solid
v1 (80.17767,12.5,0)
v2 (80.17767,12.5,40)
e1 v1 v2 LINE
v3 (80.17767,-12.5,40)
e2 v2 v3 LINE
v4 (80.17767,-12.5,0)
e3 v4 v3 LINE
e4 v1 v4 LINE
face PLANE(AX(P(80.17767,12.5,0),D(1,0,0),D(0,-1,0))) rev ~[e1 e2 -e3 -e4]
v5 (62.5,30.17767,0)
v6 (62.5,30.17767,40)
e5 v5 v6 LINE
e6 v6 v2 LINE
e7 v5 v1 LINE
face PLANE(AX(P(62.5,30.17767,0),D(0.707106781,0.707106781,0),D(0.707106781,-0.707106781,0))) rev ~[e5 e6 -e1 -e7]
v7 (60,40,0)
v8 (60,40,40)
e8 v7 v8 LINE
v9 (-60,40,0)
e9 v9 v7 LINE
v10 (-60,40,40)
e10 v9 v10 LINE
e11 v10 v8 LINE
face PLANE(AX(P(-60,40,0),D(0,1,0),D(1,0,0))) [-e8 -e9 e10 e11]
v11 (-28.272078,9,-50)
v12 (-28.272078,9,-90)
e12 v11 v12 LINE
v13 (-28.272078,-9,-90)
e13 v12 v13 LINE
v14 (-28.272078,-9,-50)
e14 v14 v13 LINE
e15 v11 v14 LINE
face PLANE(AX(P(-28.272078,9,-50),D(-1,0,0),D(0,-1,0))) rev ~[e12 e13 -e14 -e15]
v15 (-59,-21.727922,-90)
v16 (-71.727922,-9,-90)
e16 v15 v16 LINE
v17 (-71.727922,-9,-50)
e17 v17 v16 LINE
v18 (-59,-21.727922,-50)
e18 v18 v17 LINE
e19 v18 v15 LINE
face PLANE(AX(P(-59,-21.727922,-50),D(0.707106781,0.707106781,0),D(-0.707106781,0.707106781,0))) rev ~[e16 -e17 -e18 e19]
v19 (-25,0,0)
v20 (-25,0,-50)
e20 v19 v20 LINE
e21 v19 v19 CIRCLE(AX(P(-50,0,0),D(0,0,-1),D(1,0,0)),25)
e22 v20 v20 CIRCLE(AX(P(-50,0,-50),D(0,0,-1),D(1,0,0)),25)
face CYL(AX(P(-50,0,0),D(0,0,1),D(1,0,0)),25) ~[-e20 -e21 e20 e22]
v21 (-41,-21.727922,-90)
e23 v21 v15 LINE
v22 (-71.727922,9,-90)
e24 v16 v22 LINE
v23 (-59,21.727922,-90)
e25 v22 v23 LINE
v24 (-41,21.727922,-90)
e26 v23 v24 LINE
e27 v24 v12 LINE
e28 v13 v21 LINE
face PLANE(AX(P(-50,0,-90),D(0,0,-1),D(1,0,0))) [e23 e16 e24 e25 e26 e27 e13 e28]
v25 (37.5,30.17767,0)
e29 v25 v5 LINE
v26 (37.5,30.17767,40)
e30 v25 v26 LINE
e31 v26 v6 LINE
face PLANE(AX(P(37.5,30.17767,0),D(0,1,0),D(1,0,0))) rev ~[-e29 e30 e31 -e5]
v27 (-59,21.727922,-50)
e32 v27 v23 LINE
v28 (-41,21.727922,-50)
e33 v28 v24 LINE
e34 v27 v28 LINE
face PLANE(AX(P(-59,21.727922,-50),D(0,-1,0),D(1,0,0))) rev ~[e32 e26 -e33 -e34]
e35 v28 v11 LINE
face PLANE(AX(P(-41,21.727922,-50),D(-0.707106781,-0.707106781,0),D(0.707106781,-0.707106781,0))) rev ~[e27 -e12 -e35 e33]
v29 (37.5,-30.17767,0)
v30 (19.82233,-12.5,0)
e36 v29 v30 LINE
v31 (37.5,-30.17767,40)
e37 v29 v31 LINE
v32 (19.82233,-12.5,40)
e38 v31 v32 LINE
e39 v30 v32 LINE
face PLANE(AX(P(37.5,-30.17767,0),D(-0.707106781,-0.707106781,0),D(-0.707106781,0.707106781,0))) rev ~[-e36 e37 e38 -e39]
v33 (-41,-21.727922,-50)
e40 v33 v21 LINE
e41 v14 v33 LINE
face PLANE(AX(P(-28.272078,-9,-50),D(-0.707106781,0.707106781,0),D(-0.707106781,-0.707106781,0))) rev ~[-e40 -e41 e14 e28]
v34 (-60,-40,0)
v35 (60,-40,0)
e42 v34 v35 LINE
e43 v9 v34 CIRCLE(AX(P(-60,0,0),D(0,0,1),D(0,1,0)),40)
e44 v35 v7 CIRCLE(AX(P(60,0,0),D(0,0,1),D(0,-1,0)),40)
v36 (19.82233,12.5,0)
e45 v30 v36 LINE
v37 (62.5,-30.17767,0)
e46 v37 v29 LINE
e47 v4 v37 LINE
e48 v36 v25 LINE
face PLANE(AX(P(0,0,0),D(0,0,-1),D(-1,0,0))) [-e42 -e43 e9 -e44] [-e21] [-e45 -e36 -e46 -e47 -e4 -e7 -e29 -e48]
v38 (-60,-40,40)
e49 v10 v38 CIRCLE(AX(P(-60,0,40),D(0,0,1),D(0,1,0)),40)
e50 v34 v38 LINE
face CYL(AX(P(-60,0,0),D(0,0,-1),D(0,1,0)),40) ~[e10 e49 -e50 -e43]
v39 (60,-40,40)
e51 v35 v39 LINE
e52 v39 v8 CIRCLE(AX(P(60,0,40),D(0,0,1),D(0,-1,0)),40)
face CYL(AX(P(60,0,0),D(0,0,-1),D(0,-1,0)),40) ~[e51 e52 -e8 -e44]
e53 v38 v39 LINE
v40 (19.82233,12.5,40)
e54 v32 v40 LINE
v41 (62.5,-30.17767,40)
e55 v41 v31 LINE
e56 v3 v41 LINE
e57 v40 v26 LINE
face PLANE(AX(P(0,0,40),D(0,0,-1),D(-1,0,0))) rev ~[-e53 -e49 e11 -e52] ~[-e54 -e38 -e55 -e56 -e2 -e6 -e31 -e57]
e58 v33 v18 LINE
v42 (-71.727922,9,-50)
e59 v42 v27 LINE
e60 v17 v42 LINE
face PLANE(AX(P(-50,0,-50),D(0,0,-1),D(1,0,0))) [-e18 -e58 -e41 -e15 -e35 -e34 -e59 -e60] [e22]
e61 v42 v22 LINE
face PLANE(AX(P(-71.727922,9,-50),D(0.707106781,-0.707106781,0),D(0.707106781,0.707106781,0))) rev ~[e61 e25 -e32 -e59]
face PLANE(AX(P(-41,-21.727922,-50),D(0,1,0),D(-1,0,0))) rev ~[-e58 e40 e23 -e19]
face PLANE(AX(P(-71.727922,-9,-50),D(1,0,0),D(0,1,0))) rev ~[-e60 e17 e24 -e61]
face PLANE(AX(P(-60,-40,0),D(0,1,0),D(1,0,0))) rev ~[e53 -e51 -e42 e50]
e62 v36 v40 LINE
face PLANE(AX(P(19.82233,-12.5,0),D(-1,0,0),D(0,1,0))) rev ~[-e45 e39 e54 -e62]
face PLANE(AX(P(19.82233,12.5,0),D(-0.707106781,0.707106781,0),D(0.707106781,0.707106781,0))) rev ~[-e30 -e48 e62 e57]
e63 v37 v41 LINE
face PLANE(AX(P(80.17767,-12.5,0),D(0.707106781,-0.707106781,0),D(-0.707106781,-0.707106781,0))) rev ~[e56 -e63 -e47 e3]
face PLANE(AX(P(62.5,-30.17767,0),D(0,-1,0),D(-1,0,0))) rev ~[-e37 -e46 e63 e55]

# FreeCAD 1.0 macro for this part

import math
import FreeCAD as App
import Part
import Sketcher
from FreeCAD import Vector
Q = App.Units.Quantity

doc = App.newDocument("Part")
params = doc.addObject("Spreadsheet::Sheet", "Params")
for row, (alias, value) in enumerate([
    ("sketch1_radius", "40 mm"),
    ("sketch1_width", "120 mm"),
    ("pad1_length", "40 mm"),
    ("sketch2_width", "25 mm"),
    ("sketch2_length", "25.000001 mm"),
    ("pocket1_length", "100 mm"),
    ("sketch3_diameter", "50 mm"),
    ("pad2_length", "50 mm"),
    ("sketch4_width", "18 mm"),
    ("sketch4_length", "18 mm"),
    ("pad3_length", "40 mm"),
], start=1):
    params.set(f"A{row}", alias)
    params.set(f"B{row}", "=" + value)
    params.setAlias(f"B{row}", alias)

body = doc.addObject("PartDesign::Body", "Body")

# Sketch on XY plane
sketch1 = doc.addObject("Sketcher::SketchObject", "Sketch")
body.addObject(sketch1)
sketch1.AttachmentSupport = (doc.XY_Plane, [""])
sketch1.MapMode = "FlatFace"
sketch1.addGeometry(Part.LineSegment(Vector(60, 40, 0), Vector(-60, 40, 0)), False)
sketch1.addGeometry(Part.ArcOfCircle(Part.Circle(Vector(-60, 0, 0), Vector(0, 0, 1), 40), math.radians(90), math.radians(270)), False)
sketch1.addGeometry(Part.LineSegment(Vector(-60, -40, 0), Vector(60, -40, 0)), False)
sketch1.addGeometry(Part.ArcOfCircle(Part.Circle(Vector(60, 0, 0), Vector(0, 0, 1), 40), math.radians(-90), math.radians(90)), False)
sketch1.addConstraint(Sketcher.Constraint("Tangent", 0, 2, 1, 1))
sketch1.addConstraint(Sketcher.Constraint("Tangent", 1, 2, 2, 1))
sketch1.addConstraint(Sketcher.Constraint("Tangent", 2, 2, 3, 1))
sketch1.addConstraint(Sketcher.Constraint("Tangent", 3, 2, 0, 1))
sketch1.addConstraint(Sketcher.Constraint("Horizontal", 0))
sketch1.addConstraint(Sketcher.Constraint("Horizontal", 2))
sketch1.addConstraint(Sketcher.Constraint("Symmetric", 1, 3, 3, 3, -1, 1))
sketch1.addConstraint(Sketcher.Constraint("Radius", 1, Q("40 mm")))
sketch1.addConstraint(Sketcher.Constraint("DistanceX", 0, 2, 0, 1, Q("120 mm")))
sketch1.setExpression("Constraints[7]", "Params.sketch1_radius")
sketch1.setExpression("Constraints[8]", "Params.sketch1_width")
pad1 = doc.addObject("PartDesign::Pad", "Pad")
body.addObject(pad1)
pad1.Profile = sketch1
pad1.setExpression("Length", "Params.pad1_length")

# Sketch on XY plane
sketch2 = doc.addObject("Sketcher::SketchObject", "Sketch001")
body.addObject(sketch2)
sketch2.AttachmentSupport = (doc.XY_Plane, [""])
sketch2.MapMode = "FlatFace"
sketch2.addGeometry(Part.LineSegment(Vector(62, 30, 0), Vector(80, 12, 0)), False)
sketch2.addGeometry(Part.LineSegment(Vector(80, 12, 0), Vector(80, -12, 0)), False)
sketch2.addGeometry(Part.LineSegment(Vector(80, -12, 0), Vector(62, -30, 0)), False)
sketch2.addGeometry(Part.LineSegment(Vector(62, -30, 0), Vector(38, -30, 0)), False)
sketch2.addGeometry(Part.LineSegment(Vector(38, -30, 0), Vector(20, -12, 0)), False)
sketch2.addGeometry(Part.LineSegment(Vector(20, -12, 0), Vector(20, 12, 0)), False)
sketch2.addGeometry(Part.LineSegment(Vector(20, 12, 0), Vector(38, 30, 0)), False)
sketch2.addGeometry(Part.LineSegment(Vector(38, 30, 0), Vector(62, 30, 0)), False)
sketch2.addConstraint(Sketcher.Constraint("Coincident", 0, 2, 1, 1))
sketch2.addConstraint(Sketcher.Constraint("Coincident", 1, 2, 2, 1))
sketch2.addConstraint(Sketcher.Constraint("Coincident", 2, 2, 3, 1))
sketch2.addConstraint(Sketcher.Constraint("Coincident", 3, 2, 4, 1))
sketch2.addConstraint(Sketcher.Constraint("Coincident", 4, 2, 5, 1))
sketch2.addConstraint(Sketcher.Constraint("Coincident", 5, 2, 6, 1))
sketch2.addConstraint(Sketcher.Constraint("Coincident", 6, 2, 7, 1))
sketch2.addConstraint(Sketcher.Constraint("Coincident", 7, 2, 0, 1))
sketch2.addConstraint(Sketcher.Constraint("Vertical", 1))
sketch2.addConstraint(Sketcher.Constraint("Horizontal", 3))
sketch2.addConstraint(Sketcher.Constraint("Vertical", 5))
sketch2.addConstraint(Sketcher.Constraint("Horizontal", 7))
sketch2.addConstraint(Sketcher.Constraint("Symmetric", 3, 2, 6, 2, -1))
sketch2.addConstraint(Sketcher.Constraint("Perpendicular", 0, 2))
sketch2.addConstraint(Sketcher.Constraint("Perpendicular", 2, 4))
sketch2.addConstraint(Sketcher.Constraint("Perpendicular", 4, 6))
sketch2.addConstraint(Sketcher.Constraint("Horizontal", 1, 2, 4, 2))
sketch2.addConstraint(Sketcher.Constraint("Horizontal", 0, 2, 5, 2))
sketch2.addConstraint(Sketcher.Constraint("Vertical", 2, 2, 7, 2))
sketch2.addConstraint(Sketcher.Constraint("Equal", 7, 1))
sketch2.addConstraint(Sketcher.Constraint("DistanceX", 3, 2, 3, 1, Q("25 mm")))
sketch2.addConstraint(Sketcher.Constraint("Distance", 0, Q("25.000001 mm")))
sketch2.addConstraint(Sketcher.Constraint("DistanceX", -1, 1, 2, 2, Q("62.5 mm")))
sketch2.setExpression("Constraints[20]", "Params.sketch2_width")
sketch2.setExpression("Constraints[21]", "Params.sketch2_length")
pocket1 = doc.addObject("PartDesign::Pocket", "Pocket")
body.addObject(pocket1)
pocket1.Profile = sketch2
pocket1.setExpression("Length", "Params.pocket1_length")
pocket1.Reversed = True

# Sketch on XY plane
sketch3 = doc.addObject("Sketcher::SketchObject", "Sketch002")
body.addObject(sketch3)
sketch3.AttachmentSupport = (doc.XY_Plane, [""])
sketch3.MapMode = "FlatFace"
sketch3.addGeometry(Part.Circle(Vector(-50, 0, 0), Vector(0, 0, 1), 25), False)
sketch3.addConstraint(Sketcher.Constraint("PointOnObject", 0, 3, -1))
sketch3.addConstraint(Sketcher.Constraint("Diameter", 0, Q("50 mm")))
sketch3.addConstraint(Sketcher.Constraint("DistanceX", 0, 3, -1, 1, Q("50 mm")))
sketch3.setExpression("Constraints[1]", "Params.sketch3_diameter")
pad2 = doc.addObject("PartDesign::Pad", "Pad001")
body.addObject(pad2)
pad2.Profile = sketch3
pad2.setExpression("Length", "Params.pad2_length")
pad2.Reversed = True

# Sketch on XY plane
sketch4 = doc.addObject("Sketcher::SketchObject", "Sketch003")
body.addObject(sketch4)
sketch4.AttachmentSupport = (doc.XY_Plane, [""])
sketch4.MapMode = "FlatFace"
sketch4.AttachmentOffset = App.Placement(Vector(0, 0, -50), App.Rotation())
sketch4.addGeometry(Part.LineSegment(Vector(-41, 22, 0), Vector(-28, 9, 0)), False)
sketch4.addGeometry(Part.LineSegment(Vector(-28, 9, 0), Vector(-28, -9, 0)), False)
sketch4.addGeometry(Part.LineSegment(Vector(-28, -9, 0), Vector(-41, -22, 0)), False)
sketch4.addGeometry(Part.LineSegment(Vector(-41, -22, 0), Vector(-59, -22, 0)), False)
sketch4.addGeometry(Part.LineSegment(Vector(-59, -22, 0), Vector(-72, -9, 0)), False)
sketch4.addGeometry(Part.LineSegment(Vector(-72, -9, 0), Vector(-72, 9, 0)), False)
sketch4.addGeometry(Part.LineSegment(Vector(-72, 9, 0), Vector(-59, 22, 0)), False)
sketch4.addGeometry(Part.LineSegment(Vector(-59, 22, 0), Vector(-41, 22, 0)), False)
sketch4.addConstraint(Sketcher.Constraint("Coincident", 0, 2, 1, 1))
sketch4.addConstraint(Sketcher.Constraint("Coincident", 1, 2, 2, 1))
sketch4.addConstraint(Sketcher.Constraint("Coincident", 2, 2, 3, 1))
sketch4.addConstraint(Sketcher.Constraint("Coincident", 3, 2, 4, 1))
sketch4.addConstraint(Sketcher.Constraint("Coincident", 4, 2, 5, 1))
sketch4.addConstraint(Sketcher.Constraint("Coincident", 5, 2, 6, 1))
sketch4.addConstraint(Sketcher.Constraint("Coincident", 6, 2, 7, 1))
sketch4.addConstraint(Sketcher.Constraint("Coincident", 7, 2, 0, 1))
sketch4.addConstraint(Sketcher.Constraint("Vertical", 1))
sketch4.addConstraint(Sketcher.Constraint("Horizontal", 3))
sketch4.addConstraint(Sketcher.Constraint("Vertical", 5))
sketch4.addConstraint(Sketcher.Constraint("Horizontal", 7))
sketch4.addConstraint(Sketcher.Constraint("Symmetric", 3, 2, 6, 2, -1))
sketch4.addConstraint(Sketcher.Constraint("Perpendicular", 0, 2))
sketch4.addConstraint(Sketcher.Constraint("Perpendicular", 2, 4))
sketch4.addConstraint(Sketcher.Constraint("Perpendicular", 4, 6))
sketch4.addConstraint(Sketcher.Constraint("Horizontal", 1, 2, 4, 2))
sketch4.addConstraint(Sketcher.Constraint("Horizontal", 0, 2, 5, 2))
sketch4.addConstraint(Sketcher.Constraint("Vertical", 2, 2, 7, 2))
sketch4.addConstraint(Sketcher.Constraint("Equal", 7, 1))
sketch4.addConstraint(Sketcher.Constraint("DistanceX", 3, 2, 3, 1, Q("18 mm")))
sketch4.addConstraint(Sketcher.Constraint("Distance", 0, Q("18 mm")))
sketch4.addConstraint(Sketcher.Constraint("DistanceX", 2, 2, -1, 1, Q("41 mm")))
sketch4.setExpression("Constraints[20]", "Params.sketch4_width")
sketch4.setExpression("Constraints[21]", "Params.sketch4_length")
pad3 = doc.addObject("PartDesign::Pad", "Pad002")
body.addObject(pad3)
pad3.Profile = sketch4
pad3.setExpression("Length", "Params.pad3_length")
pad3.Reversed = True

doc.recompute()
